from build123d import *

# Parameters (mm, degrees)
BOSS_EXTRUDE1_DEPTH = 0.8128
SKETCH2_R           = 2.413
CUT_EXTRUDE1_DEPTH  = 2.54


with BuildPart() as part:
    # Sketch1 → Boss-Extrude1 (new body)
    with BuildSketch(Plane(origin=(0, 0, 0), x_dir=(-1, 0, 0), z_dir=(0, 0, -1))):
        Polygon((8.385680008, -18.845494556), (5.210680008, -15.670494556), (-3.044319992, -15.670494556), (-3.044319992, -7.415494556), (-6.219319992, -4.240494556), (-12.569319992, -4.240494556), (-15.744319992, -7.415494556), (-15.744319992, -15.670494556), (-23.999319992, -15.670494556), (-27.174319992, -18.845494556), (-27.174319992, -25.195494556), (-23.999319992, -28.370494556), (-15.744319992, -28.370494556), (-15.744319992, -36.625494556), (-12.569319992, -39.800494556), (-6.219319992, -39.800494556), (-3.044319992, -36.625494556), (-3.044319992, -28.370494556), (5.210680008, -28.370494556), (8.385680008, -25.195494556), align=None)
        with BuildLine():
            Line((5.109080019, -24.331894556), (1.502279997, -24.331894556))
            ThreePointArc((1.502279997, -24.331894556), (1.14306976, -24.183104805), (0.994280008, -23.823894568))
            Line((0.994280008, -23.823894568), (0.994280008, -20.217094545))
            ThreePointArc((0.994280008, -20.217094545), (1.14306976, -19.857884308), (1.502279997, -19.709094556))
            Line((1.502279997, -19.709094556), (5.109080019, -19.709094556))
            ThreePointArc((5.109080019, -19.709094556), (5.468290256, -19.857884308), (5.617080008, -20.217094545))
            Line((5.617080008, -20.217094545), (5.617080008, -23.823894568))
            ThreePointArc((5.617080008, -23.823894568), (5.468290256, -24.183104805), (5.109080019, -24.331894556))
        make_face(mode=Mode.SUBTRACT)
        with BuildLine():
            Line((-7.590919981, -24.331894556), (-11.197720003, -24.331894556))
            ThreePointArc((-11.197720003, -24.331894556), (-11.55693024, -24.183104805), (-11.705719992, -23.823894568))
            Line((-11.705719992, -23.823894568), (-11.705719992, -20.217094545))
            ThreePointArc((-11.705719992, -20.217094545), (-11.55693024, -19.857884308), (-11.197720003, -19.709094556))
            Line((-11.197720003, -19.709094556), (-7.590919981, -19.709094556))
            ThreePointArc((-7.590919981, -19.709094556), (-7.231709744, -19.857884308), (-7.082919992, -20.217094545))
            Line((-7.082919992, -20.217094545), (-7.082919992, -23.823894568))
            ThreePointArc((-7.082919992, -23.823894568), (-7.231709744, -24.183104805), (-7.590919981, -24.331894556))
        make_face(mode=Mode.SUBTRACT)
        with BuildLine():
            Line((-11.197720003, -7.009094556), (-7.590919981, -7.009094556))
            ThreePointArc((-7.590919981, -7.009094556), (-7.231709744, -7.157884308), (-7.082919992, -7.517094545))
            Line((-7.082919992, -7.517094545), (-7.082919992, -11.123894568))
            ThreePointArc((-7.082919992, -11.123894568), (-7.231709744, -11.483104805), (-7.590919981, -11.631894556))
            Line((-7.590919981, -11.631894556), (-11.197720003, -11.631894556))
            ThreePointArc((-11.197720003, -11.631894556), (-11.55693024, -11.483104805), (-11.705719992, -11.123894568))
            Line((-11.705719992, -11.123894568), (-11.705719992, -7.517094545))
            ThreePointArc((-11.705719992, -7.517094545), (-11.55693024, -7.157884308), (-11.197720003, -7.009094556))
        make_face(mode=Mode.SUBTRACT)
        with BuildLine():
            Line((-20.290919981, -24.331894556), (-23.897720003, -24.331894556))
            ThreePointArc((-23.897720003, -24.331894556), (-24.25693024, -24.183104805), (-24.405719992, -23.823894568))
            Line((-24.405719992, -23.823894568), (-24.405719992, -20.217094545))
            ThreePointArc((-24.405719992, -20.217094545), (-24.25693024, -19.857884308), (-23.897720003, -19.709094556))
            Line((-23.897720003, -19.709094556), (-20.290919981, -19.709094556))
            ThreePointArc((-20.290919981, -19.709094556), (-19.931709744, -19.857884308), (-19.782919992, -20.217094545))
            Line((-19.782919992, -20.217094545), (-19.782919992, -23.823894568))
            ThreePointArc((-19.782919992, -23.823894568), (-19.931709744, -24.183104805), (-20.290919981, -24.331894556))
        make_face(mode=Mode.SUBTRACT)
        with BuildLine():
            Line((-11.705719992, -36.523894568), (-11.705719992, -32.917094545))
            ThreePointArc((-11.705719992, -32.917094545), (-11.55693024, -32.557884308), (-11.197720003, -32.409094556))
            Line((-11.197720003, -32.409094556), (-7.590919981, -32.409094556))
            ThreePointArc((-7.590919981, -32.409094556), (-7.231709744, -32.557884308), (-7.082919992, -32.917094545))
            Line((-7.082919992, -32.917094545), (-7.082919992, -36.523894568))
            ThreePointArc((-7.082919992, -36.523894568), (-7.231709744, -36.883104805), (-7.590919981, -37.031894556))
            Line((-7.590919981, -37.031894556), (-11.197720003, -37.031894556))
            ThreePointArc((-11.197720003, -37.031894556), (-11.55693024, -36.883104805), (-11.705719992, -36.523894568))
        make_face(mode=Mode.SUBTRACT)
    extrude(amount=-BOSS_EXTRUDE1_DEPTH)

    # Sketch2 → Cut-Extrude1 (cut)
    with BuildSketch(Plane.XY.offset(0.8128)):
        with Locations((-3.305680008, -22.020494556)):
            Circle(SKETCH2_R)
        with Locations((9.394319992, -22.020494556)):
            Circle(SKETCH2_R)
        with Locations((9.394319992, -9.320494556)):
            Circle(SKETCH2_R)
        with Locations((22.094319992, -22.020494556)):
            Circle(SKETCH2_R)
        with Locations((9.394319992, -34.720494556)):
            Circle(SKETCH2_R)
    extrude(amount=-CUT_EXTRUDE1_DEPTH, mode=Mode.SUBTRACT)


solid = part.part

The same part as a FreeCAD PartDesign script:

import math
import FreeCAD as App
import Part
import Sketcher
Q = App.Units.Quantity

doc = App.newDocument("Part")
body = doc.addObject("PartDesign::Body", "Body")

# Sketch on XY plane
sketch1 = body.newObject("Sketcher::SketchObject", "Sketch")
sketch1.AttachmentSupport = (doc.getObject("XY_Plane"), [""])
sketch1.MapMode = "FlatFace"
sketch1.addGeometry([
    Part.LineSegment(App.Vector(-8.4, -18.8, 0), App.Vector(-5.2, -15.7, 0)),  # 0
    Part.LineSegment(App.Vector(-5.2, -15.7, 0), App.Vector(3, -15.7, 0)),  # 1
    Part.LineSegment(App.Vector(3, -15.7, 0), App.Vector(3, -7.4, 0)),  # 2
    Part.LineSegment(App.Vector(3, -7.4, 0), App.Vector(6.2, -4.2, 0)),  # 3
    Part.LineSegment(App.Vector(6.2, -4.2, 0), App.Vector(12.6, -4.2, 0)),  # 4
    Part.LineSegment(App.Vector(12.6, -4.2, 0), App.Vector(15.7, -7.4, 0)),  # 5
    Part.LineSegment(App.Vector(15.7, -7.4, 0), App.Vector(15.7, -15.7, 0)),  # 6
    Part.LineSegment(App.Vector(15.7, -15.7, 0), App.Vector(24, -15.7, 0)),  # 7
    Part.LineSegment(App.Vector(24, -15.7, 0), App.Vector(27.2, -18.8, 0)),  # 8
    Part.LineSegment(App.Vector(27.2, -18.8, 0), App.Vector(27.2, -25.2, 0)),  # 9
    Part.LineSegment(App.Vector(27.2, -25.2, 0), App.Vector(24, -28.4, 0)),  # 10
    Part.LineSegment(App.Vector(24, -28.4, 0), App.Vector(15.7, -28.4, 0)),  # 11
    Part.LineSegment(App.Vector(15.7, -28.4, 0), App.Vector(15.7, -36.6, 0)),  # 12
    Part.LineSegment(App.Vector(15.7, -36.6, 0), App.Vector(12.6, -39.8, 0)),  # 13
    Part.LineSegment(App.Vector(12.6, -39.8, 0), App.Vector(6.2, -39.8, 0)),  # 14
    Part.LineSegment(App.Vector(6.2, -39.8, 0), App.Vector(3, -36.6, 0)),  # 15
    Part.LineSegment(App.Vector(3, -36.6, 0), App.Vector(3, -28.4, 0)),  # 16
    Part.LineSegment(App.Vector(3, -28.4, 0), App.Vector(-5.2, -28.4, 0)),  # 17
    Part.LineSegment(App.Vector(-5.2, -28.4, 0), App.Vector(-8.4, -25.2, 0)),  # 18
    Part.LineSegment(App.Vector(-8.4, -25.2, 0), App.Vector(-8.4, -18.8, 0)),  # 19
    Part.ArcOfCircle(Part.Circle(App.Vector(11.2, -36.5, 0), App.Vector(0, 0, 1), 0.5), math.radians(-90), math.radians(0)),  # 20
    Part.LineSegment(App.Vector(11.7, -36.5, 0), App.Vector(11.7, -32.9, 0)),  # 21
    Part.ArcOfCircle(Part.Circle(App.Vector(11.2, -32.9, 0), App.Vector(0, 0, 1), 0.5), math.radians(0), math.radians(90)),  # 22
    Part.LineSegment(App.Vector(11.2, -32.4, 0), App.Vector(7.6, -32.4, 0)),  # 23
    Part.ArcOfCircle(Part.Circle(App.Vector(7.6, -32.9, 0), App.Vector(0, 0, 1), 0.5), math.radians(90), math.radians(180)),  # 24
    Part.LineSegment(App.Vector(7.1, -32.9, 0), App.Vector(7.1, -36.5, 0)),  # 25
    Part.ArcOfCircle(Part.Circle(App.Vector(7.6, -36.5, 0), App.Vector(0, 0, 1), 0.5), math.radians(180), math.radians(270)),  # 26
    Part.LineSegment(App.Vector(7.6, -37, 0), App.Vector(11.2, -37, 0)),  # 27
    Part.ArcOfCircle(Part.Circle(App.Vector(20.3, -23.8, 0), App.Vector(0, 0, 1), 0.5), math.radians(180), math.radians(270)),  # 28
    Part.LineSegment(App.Vector(20.3, -24.3, 0), App.Vector(23.9, -24.3, 0)),  # 29
    Part.ArcOfCircle(Part.Circle(App.Vector(23.9, -23.8, 0), App.Vector(0, 0, 1), 0.5), math.radians(-90), math.radians(0)),  # 30
    Part.LineSegment(App.Vector(24.4, -23.8, 0), App.Vector(24.4, -20.2, 0)),  # 31
    Part.ArcOfCircle(Part.Circle(App.Vector(23.9, -20.2, 0), App.Vector(0, 0, 1), 0.5), math.radians(0), math.radians(90)),  # 32
    Part.LineSegment(App.Vector(23.9, -19.7, 0), App.Vector(20.3, -19.7, 0)),  # 33
    Part.ArcOfCircle(Part.Circle(App.Vector(20.3, -20.2, 0), App.Vector(0, 0, 1), 0.5), math.radians(90), math.radians(180)),  # 34
    Part.LineSegment(App.Vector(19.8, -20.2, 0), App.Vector(19.8, -23.8, 0)),  # 35
    Part.ArcOfCircle(Part.Circle(App.Vector(7.6, -23.8, 0), App.Vector(0, 0, 1), 0.5), math.radians(180), math.radians(270)),  # 36
    Part.LineSegment(App.Vector(7.6, -24.3, 0), App.Vector(11.2, -24.3, 0)),  # 37
    Part.ArcOfCircle(Part.Circle(App.Vector(11.2, -23.8, 0), App.Vector(0, 0, 1), 0.5), math.radians(-90), math.radians(0)),  # 38
    Part.LineSegment(App.Vector(11.7, -23.8, 0), App.Vector(11.7, -20.2, 0)),  # 39
    Part.ArcOfCircle(Part.Circle(App.Vector(11.2, -20.2, 0), App.Vector(0, 0, 1), 0.5), math.radians(0), math.radians(90)),  # 40
    Part.LineSegment(App.Vector(11.2, -19.7, 0), App.Vector(7.6, -19.7, 0)),  # 41
    Part.ArcOfCircle(Part.Circle(App.Vector(7.6, -20.2, 0), App.Vector(0, 0, 1), 0.5), math.radians(90), math.radians(180)),  # 42
    Part.LineSegment(App.Vector(7.1, -20.2, 0), App.Vector(7.1, -23.8, 0)),  # 43
    Part.ArcOfCircle(Part.Circle(App.Vector(11.2, -7.5, 0), App.Vector(0, 0, 1), 0.5), math.radians(0), math.radians(90)),  # 44
    Part.LineSegment(App.Vector(11.2, -7, 0), App.Vector(7.6, -7, 0)),  # 45
    Part.ArcOfCircle(Part.Circle(App.Vector(7.6, -7.5, 0), App.Vector(0, 0, 1), 0.5), math.radians(90), math.radians(180)),  # 46
    Part.LineSegment(App.Vector(7.1, -7.5, 0), App.Vector(7.1, -11.1, 0)),  # 47
    Part.ArcOfCircle(Part.Circle(App.Vector(7.6, -11.1, 0), App.Vector(0, 0, 1), 0.5), math.radians(180), math.radians(270)),  # 48
    Part.LineSegment(App.Vector(7.6, -11.6, 0), App.Vector(11.2, -11.6, 0)),  # 49
    Part.ArcOfCircle(Part.Circle(App.Vector(11.2, -11.1, 0), App.Vector(0, 0, 1), 0.5), math.radians(-90), math.radians(0)),  # 50
    Part.LineSegment(App.Vector(11.7, -11.1, 0), App.Vector(11.7, -7.5, 0)),  # 51
    Part.ArcOfCircle(Part.Circle(App.Vector(-5.1, -23.8, 0), App.Vector(0, 0, 1), 0.5), math.radians(180), math.radians(270)),  # 52
    Part.LineSegment(App.Vector(-5.1, -24.3, 0), App.Vector(-1.5, -24.3, 0)),  # 53
    Part.ArcOfCircle(Part.Circle(App.Vector(-1.5, -23.8, 0), App.Vector(0, 0, 1), 0.5), math.radians(-90), math.radians(0)),  # 54
    Part.LineSegment(App.Vector(-1, -23.8, 0), App.Vector(-1, -20.2, 0)),  # 55
    Part.ArcOfCircle(Part.Circle(App.Vector(-1.5, -20.2, 0), App.Vector(0, 0, 1), 0.5), math.radians(0), math.radians(90)),  # 56
    Part.LineSegment(App.Vector(-1.5, -19.7, 0), App.Vector(-5.1, -19.7, 0)),  # 57
    Part.ArcOfCircle(Part.Circle(App.Vector(-5.1, -20.2, 0), App.Vector(0, 0, 1), 0.5), math.radians(90), math.radians(180)),  # 58
    Part.LineSegment(App.Vector(-5.6, -20.2, 0), App.Vector(-5.6, -23.8, 0)),  # 59
], False)
sketch1.addConstraint([
    Sketcher.Constraint("Coincident", 0, 2, 1, 1),
    Sketcher.Constraint("Coincident", 1, 2, 2, 1),
    Sketcher.Constraint("Coincident", 2, 2, 3, 1),
    Sketcher.Constraint("Coincident", 3, 2, 4, 1),
    Sketcher.Constraint("Coincident", 4, 2, 5, 1),
    Sketcher.Constraint("Coincident", 5, 2, 6, 1),
    Sketcher.Constraint("Coincident", 6, 2, 7, 1),
    Sketcher.Constraint("Coincident", 7, 2, 8, 1),
    Sketcher.Constraint("Coincident", 8, 2, 9, 1),
    Sketcher.Constraint("Coincident", 9, 2, 10, 1),
    Sketcher.Constraint("Coincident", 10, 2, 11, 1),
    Sketcher.Constraint("Coincident", 11, 2, 12, 1),
    Sketcher.Constraint("Coincident", 12, 2, 13, 1),
    Sketcher.Constraint("Coincident", 13, 2, 14, 1),
    Sketcher.Constraint("Coincident", 14, 2, 15, 1),
    Sketcher.Constraint("Coincident", 15, 2, 16, 1),
    Sketcher.Constraint("Coincident", 16, 2, 17, 1),
    Sketcher.Constraint("Coincident", 17, 2, 18, 1),
    Sketcher.Constraint("Coincident", 18, 2, 19, 1),
    Sketcher.Constraint("Coincident", 19, 2, 0, 1),
    Sketcher.Constraint("Tangent", 20, 2, 21, 1),
    Sketcher.Constraint("Tangent", 21, 2, 22, 1),
    Sketcher.Constraint("Tangent", 22, 2, 23, 1),
    Sketcher.Constraint("Tangent", 23, 2, 24, 1),
    Sketcher.Constraint("Tangent", 24, 2, 25, 1),
    Sketcher.Constraint("Tangent", 25, 2, 26, 1),
    Sketcher.Constraint("Tangent", 26, 2, 27, 1),
    Sketcher.Constraint("Tangent", 27, 2, 20, 1),
    Sketcher.Constraint("Tangent", 28, 2, 29, 1),
    Sketcher.Constraint("Tangent", 29, 2, 30, 1),
    Sketcher.Constraint("Tangent", 30, 2, 31, 1),
    Sketcher.Constraint("Tangent", 31, 2, 32, 1),
    Sketcher.Constraint("Tangent", 32, 2, 33, 1),
    Sketcher.Constraint("Tangent", 33, 2, 34, 1),
    Sketcher.Constraint("Tangent", 34, 2, 35, 1),
    Sketcher.Constraint("Tangent", 35, 2, 28, 1),
    Sketcher.Constraint("Tangent", 36, 2, 37, 1),
    Sketcher.Constraint("Tangent", 37, 2, 38, 1),
    Sketcher.Constraint("Tangent", 38, 2, 39, 1),
    Sketcher.Constraint("Tangent", 39, 2, 40, 1),
    Sketcher.Constraint("Tangent", 40, 2, 41, 1),
    Sketcher.Constraint("Tangent", 41, 2, 42, 1),
    Sketcher.Constraint("Tangent", 42, 2, 43, 1),
    Sketcher.Constraint("Tangent", 43, 2, 36, 1),
    Sketcher.Constraint("Tangent", 44, 2, 45, 1),
    Sketcher.Constraint("Tangent", 45, 2, 46, 1),
    Sketcher.Constraint("Tangent", 46, 2, 47, 1),
    Sketcher.Constraint("Tangent", 47, 2, 48, 1),
    Sketcher.Constraint("Tangent", 48, 2, 49, 1),
    Sketcher.Constraint("Tangent", 49, 2, 50, 1),
    Sketcher.Constraint("Tangent", 50, 2, 51, 1),
    Sketcher.Constraint("Tangent", 51, 2, 44, 1),
    Sketcher.Constraint("Tangent", 52, 2, 53, 1),
    Sketcher.Constraint("Tangent", 53, 2, 54, 1),
    Sketcher.Constraint("Tangent", 54, 2, 55, 1),
    Sketcher.Constraint("Tangent", 55, 2, 56, 1),
    Sketcher.Constraint("Tangent", 56, 2, 57, 1),
    Sketcher.Constraint("Tangent", 57, 2, 58, 1),
    Sketcher.Constraint("Tangent", 58, 2, 59, 1),
    Sketcher.Constraint("Tangent", 59, 2, 52, 1),
    Sketcher.Constraint("Horizontal", 1),
    Sketcher.Constraint("Vertical", 2),
    Sketcher.Constraint("Horizontal", 4),
    Sketcher.Constraint("Vertical", 6),
    Sketcher.Constraint("Horizontal", 7),
    Sketcher.Constraint("Vertical", 9),
    Sketcher.Constraint("Horizontal", 11),
    Sketcher.Constraint("Vertical", 12),
    Sketcher.Constraint("Horizontal", 14),
    Sketcher.Constraint("Vertical", 16),
    Sketcher.Constraint("Horizontal", 17),
    Sketcher.Constraint("Vertical", 19),
    Sketcher.Constraint("Vertical", 21),
    Sketcher.Constraint("Horizontal", 23),
    Sketcher.Constraint("Vertical", 25),
    Sketcher.Constraint("Horizontal", 27),
    Sketcher.Constraint("Horizontal", 29),
    Sketcher.Constraint("Vertical", 31),
    Sketcher.Constraint("Horizontal", 33),
    Sketcher.Constraint("Vertical", 35),
    Sketcher.Constraint("Horizontal", 37),
    Sketcher.Constraint("Vertical", 39),
    Sketcher.Constraint("Horizontal", 41),
    Sketcher.Constraint("Vertical", 43),
    Sketcher.Constraint("Horizontal", 45),
    Sketcher.Constraint("Vertical", 47),
    Sketcher.Constraint("Horizontal", 49),
    Sketcher.Constraint("Vertical", 51),
    Sketcher.Constraint("Horizontal", 53),
    Sketcher.Constraint("Vertical", 55),
    Sketcher.Constraint("Horizontal", 57),
    Sketcher.Constraint("Vertical", 59),
    Sketcher.Constraint("Equal", 20, 22),
    Sketcher.Constraint("Equal", 22, 24),
    Sketcher.Constraint("Equal", 24, 26),
    Sketcher.Constraint("Equal", 26, 28),
    Sketcher.Constraint("Equal", 28, 30),
    Sketcher.Constraint("Equal", 30, 32),
    Sketcher.Constraint("Equal", 32, 34),
    Sketcher.Constraint("Equal", 34, 36),
    Sketcher.Constraint("Equal", 36, 38),
    Sketcher.Constraint("Equal", 38, 40),
    Sketcher.Constraint("Equal", 40, 42),
    Sketcher.Constraint("Equal", 42, 44),
    Sketcher.Constraint("Equal", 44, 46),
    Sketcher.Constraint("Equal", 46, 48),
    Sketcher.Constraint("Equal", 48, 50),
    Sketcher.Constraint("Equal", 50, 52),
    Sketcher.Constraint("Equal", 52, 54),
    Sketcher.Constraint("Equal", 54, 56),
    Sketcher.Constraint("Equal", 56, 58),
    Sketcher.Constraint("Parallel", 0, 3),
    Sketcher.Constraint("Perpendicular", 3, 5),
    Sketcher.Constraint("Parallel", 5, 8),
    Sketcher.Constraint("Perpendicular", 8, 10),
    Sketcher.Constraint("Parallel", 10, 13),
    Sketcher.Constraint("Perpendicular", 13, 15),
    Sketcher.Constraint("Parallel", 15, 18),
    Sketcher.Constraint("Horizontal", 30, 3, 36, 3),
    Sketcher.Constraint("Horizontal", 34, 3, 40, 3),
    Sketcher.Constraint("Horizontal", 38, 3, 52, 3),
    Sketcher.Constraint("Horizontal", 42, 3, 56, 3),
    Sketcher.Constraint("Horizontal", 2, 2, 5, 2),
    Sketcher.Constraint("Horizontal", 1, 2, 6, 2),
    Sketcher.Constraint("Horizontal", 12, 2, 15, 2),
    Sketcher.Constraint("Horizontal", 11, 2, 16, 2),
    Sketcher.Constraint("Horizontal", 9, 2, 18, 2),
    Sketcher.Constraint("Horizontal", 8, 2, 19, 2),
    Sketcher.Constraint("Vertical", 26, 3, 36, 3),
    Sketcher.Constraint("Vertical", 22, 3, 38, 3),
    Sketcher.Constraint("Vertical", 40, 3, 44, 3),
    Sketcher.Constraint("Vertical", 42, 3, 46, 3),
    Sketcher.Constraint("Vertical", 7, 2, 10, 2),
    Sketcher.Constraint("Vertical", 6, 2, 11, 2),
    Sketcher.Constraint("Vertical", 4, 2, 13, 2),
    Sketcher.Constraint("Vertical", 3, 2, 14, 2),
    Sketcher.Constraint("Vertical", 2, 2, 15, 2),
    Sketcher.Constraint("Equal", 1, 7),
    Sketcher.Constraint("Equal", 27, 29),
    Sketcher.Constraint("Equal", 49, 53),
    Sketcher.Constraint("Equal", 17, 2),
    Sketcher.Constraint("Equal", 14, 9),
    Sketcher.Constraint("Equal", 6, 12),
    Sketcher.Constraint("Equal", 57, 21),
    Sketcher.Constraint("Equal", 25, 31),
    Sketcher.Constraint("Equal", 43, 47),
    Sketcher.Constraint("Equal", 0, 3),
    Sketcher.Constraint("Radius", 20, Q("0.02 in")),
    Sketcher.Constraint("DistanceX", 4, 1, 4, 2, Q("0.25 in")),
    Sketcher.Constraint("DistanceX", 1, 1, 1, 2, Q("0.325 in")),
    Sketcher.Constraint("DistanceX", 23, 2, 23, 1, Q("0.142 in")),
    Sketcher.Constraint("Distance", 0, 4.490128),
    Sketcher.Constraint("DistanceX", -1, 1, 20, 3, 11.19772),
    Sketcher.Constraint("DistanceX", -1, 1, 28, 3, 20.29092),
    Sketcher.Constraint("DistanceX", 52, 3, -1, 1, 5.10908),
    Sketcher.Constraint("DistanceX", 0, 2, -1, 1, 5.21068),
    Sketcher.Constraint("DistanceY", 20, 3, -1, 1, 36.523895),
    Sketcher.Constraint("DistanceY", 28, 3, -1, 1, 23.823895),
    Sketcher.Constraint("DistanceY", 44, 3, -1, 1, 7.517095),
    Sketcher.Constraint("DistanceY", 0, 2, -1, 1, 15.670495),
])
pad1 = body.newObject("PartDesign::Pad", "Pad")
pad1.Profile = sketch1
pad1.Length = Q("0.032 in")

# Sketch on XY plane
sketch2 = body.newObject("Sketcher::SketchObject", "Sketch001")
sketch2.AttachmentSupport = (doc.getObject("XY_Plane"), [""])
sketch2.MapMode = "FlatFace"
sketch2.AttachmentOffset = App.Placement(App.Vector(0, 0, 0.032 * 25.4), App.Rotation())
sketch2.addGeometry([
    Part.Circle(App.Vector(-3.3, -22, 0), App.Vector(0, 0, 1), 2.4),  # 0
    Part.Circle(App.Vector(9.4, -22, 0), App.Vector(0, 0, 1), 2.4),  # 1
    Part.Circle(App.Vector(9.4, -9.3, 0), App.Vector(0, 0, 1), 2.4),  # 2
    Part.Circle(App.Vector(22.1, -22, 0), App.Vector(0, 0, 1), 2.4),  # 3
    Part.Circle(App.Vector(9.4, -34.7, 0), App.Vector(0, 0, 1), 2.4),  # 4
], False)
sketch2.addConstraint([
    Sketcher.Constraint("Equal", 0, 1),
    Sketcher.Constraint("Equal", 1, 2),
    Sketcher.Constraint("Equal", 2, 3),
    Sketcher.Constraint("Equal", 3, 4),
    Sketcher.Constraint("Horizontal", 0, 3, 1, 3),
    Sketcher.Constraint("Horizontal", 1, 3, 3, 3),
    Sketcher.Constraint("Vertical", 1, 3, 2, 3),
    Sketcher.Constraint("Vertical", 2, 3, 4, 3),
    Sketcher.Constraint("Diameter", 0, Q("0.19 in")),
    Sketcher.Constraint("DistanceX", 0, 3, 3, 3, Q("1 in")),
    Sketcher.Constraint("DistanceY", 4, 3, 2, 3, Q("1 in")),
    Sketcher.Constraint("DistanceX", 0, 3, 1, 3, Q("0.5 in")),
    Sketcher.Constraint("DistanceY", 1, 3, 2, 3, Q("0.5 in")),
    Sketcher.Constraint("DistanceX", 0, 3, -1, 1, 3.30568),
    Sketcher.Constraint("DistanceY", 0, 3, -1, 1, 22.020495),
])
pocket1 = body.newObject("PartDesign::Pocket", "Pocket")
pocket1.Profile = sketch2
pocket1.Length = Q("0.1 in")

doc.recompute()
